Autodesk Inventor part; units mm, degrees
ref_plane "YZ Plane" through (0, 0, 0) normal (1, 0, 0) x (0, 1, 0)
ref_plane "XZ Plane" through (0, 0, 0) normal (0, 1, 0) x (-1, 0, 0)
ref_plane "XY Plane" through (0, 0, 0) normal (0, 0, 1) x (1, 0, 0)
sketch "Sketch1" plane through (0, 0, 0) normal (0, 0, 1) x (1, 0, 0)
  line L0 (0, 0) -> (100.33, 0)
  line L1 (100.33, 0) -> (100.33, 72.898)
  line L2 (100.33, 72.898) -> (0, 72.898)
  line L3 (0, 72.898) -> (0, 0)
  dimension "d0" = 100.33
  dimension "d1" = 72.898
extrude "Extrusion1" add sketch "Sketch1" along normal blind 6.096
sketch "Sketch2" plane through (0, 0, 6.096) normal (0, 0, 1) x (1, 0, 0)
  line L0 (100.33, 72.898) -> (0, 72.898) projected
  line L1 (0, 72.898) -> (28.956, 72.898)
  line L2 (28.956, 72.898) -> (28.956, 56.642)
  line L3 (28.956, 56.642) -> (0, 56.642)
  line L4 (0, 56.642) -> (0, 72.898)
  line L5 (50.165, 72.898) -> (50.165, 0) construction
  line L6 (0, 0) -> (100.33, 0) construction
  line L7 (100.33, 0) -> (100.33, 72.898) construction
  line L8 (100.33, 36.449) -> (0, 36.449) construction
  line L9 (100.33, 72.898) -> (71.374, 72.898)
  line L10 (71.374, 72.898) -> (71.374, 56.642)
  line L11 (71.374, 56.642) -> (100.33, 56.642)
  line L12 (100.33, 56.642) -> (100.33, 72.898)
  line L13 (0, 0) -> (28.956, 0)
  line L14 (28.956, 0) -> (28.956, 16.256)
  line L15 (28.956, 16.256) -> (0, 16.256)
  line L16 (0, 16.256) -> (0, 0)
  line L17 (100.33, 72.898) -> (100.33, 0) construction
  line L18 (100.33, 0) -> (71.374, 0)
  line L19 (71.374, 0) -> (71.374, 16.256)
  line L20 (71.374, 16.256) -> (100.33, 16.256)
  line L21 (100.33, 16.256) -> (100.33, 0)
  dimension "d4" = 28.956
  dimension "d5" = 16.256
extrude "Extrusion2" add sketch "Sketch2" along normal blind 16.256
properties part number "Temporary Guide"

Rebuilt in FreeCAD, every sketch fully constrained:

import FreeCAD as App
import Part
import Sketcher

V = App.Vector
Q = App.Units.Quantity


def add_polygon(sketch, points):
    """Adds a closed chain of lines whose ends are joined by coincident constraints."""
    first, n = sketch.GeometryCount, len(points)
    for a, b in zip(points, points[1:] + points[:1]):
        sketch.addGeometry(Part.LineSegment(App.Vector(*a, 0), App.Vector(*b, 0)), False)
    for i in range(n):
        sketch.addConstraint(Sketcher.Constraint("Coincident", first + i, 2, first + (i + 1) % n, 1))

doc = App.newDocument("Part")
body = doc.addObject("PartDesign::Body", "Body")

# Sketch on XY plane
sketch1 = body.newObject("Sketcher::SketchObject", "Sketch")
sketch1.AttachmentSupport = (doc.getObject("XY_Plane"), [""])
sketch1.MapMode = "FlatFace"
add_polygon(sketch1, [(0, 73), (0, 0), (100, 0), (100, 73)])  # lines 0-3
sketch1.addConstraint(Sketcher.Constraint("Vertical", 0))
sketch1.addConstraint(Sketcher.Constraint("Horizontal", 1))
sketch1.addConstraint(Sketcher.Constraint("Vertical", 2))
sketch1.addConstraint(Sketcher.Constraint("Horizontal", 3))
sketch1.addConstraint(Sketcher.Constraint("Coincident", 0, 2, -1, 1))
sketch1.addConstraint(Sketcher.Constraint("DistanceX", 1, 1, 1, 2, Q("3.95 in")))
sketch1.addConstraint(Sketcher.Constraint("DistanceY", 0, 2, 0, 1, Q("2.87 in")))
pad1 = body.newObject("PartDesign::Pad", "Pad")
pad1.Profile = sketch1
pad1.Length = Q("0.24 in")

# Sketch on XY plane
sketch2 = body.newObject("Sketcher::SketchObject", "Sketch001")
sketch2.AttachmentSupport = (doc.getObject("XY_Plane"), [""])
sketch2.MapMode = "FlatFace"
sketch2.AttachmentOffset = App.Placement(V(0, 0, 0.24 * 25.4), App.Rotation())
add_polygon(sketch2, [(100, 57), (100, 73), (71, 73), (71, 57)])  # lines 0-3
add_polygon(sketch2, [(29, 57), (29, 73), (0, 73), (0, 57)])  # lines 4-7
add_polygon(sketch2, [(0, 16), (0, 0), (29, 0), (29, 16)])  # lines 8-11
add_polygon(sketch2, [(71, 0), (100, 0), (100, 16), (71, 16)])  # lines 12-15
sketch2.addConstraint(Sketcher.Constraint("Vertical", 0))
sketch2.addConstraint(Sketcher.Constraint("Horizontal", 1))
sketch2.addConstraint(Sketcher.Constraint("Vertical", 2))
sketch2.addConstraint(Sketcher.Constraint("Horizontal", 3))
sketch2.addConstraint(Sketcher.Constraint("Vertical", 4))
sketch2.addConstraint(Sketcher.Constraint("Horizontal", 5))
sketch2.addConstraint(Sketcher.Constraint("Vertical", 6))
sketch2.addConstraint(Sketcher.Constraint("Horizontal", 7))
sketch2.addConstraint(Sketcher.Constraint("Vertical", 8))
sketch2.addConstraint(Sketcher.Constraint("Horizontal", 9))
sketch2.addConstraint(Sketcher.Constraint("Vertical", 10))
sketch2.addConstraint(Sketcher.Constraint("Horizontal", 11))
sketch2.addConstraint(Sketcher.Constraint("Horizontal", 12))
sketch2.addConstraint(Sketcher.Constraint("Vertical", 13))
sketch2.addConstraint(Sketcher.Constraint("Horizontal", 14))
sketch2.addConstraint(Sketcher.Constraint("Vertical", 15))
sketch2.addConstraint(Sketcher.Constraint("Coincident", 8, 2, -1, 1))
sketch2.addConstraint(Sketcher.Constraint("PointOnObject", 5, 2, -2))
sketch2.addConstraint(Sketcher.Constraint("PointOnObject", 12, 2, -1))
sketch2.addConstraint(Sketcher.Constraint("Horizontal", 1, 2, 4, 2))
sketch2.addConstraint(Sketcher.Constraint("Horizontal", 3, 2, 6, 2))
sketch2.addConstraint(Sketcher.Constraint("Horizontal", 11, 2, 13, 2))
sketch2.addConstraint(Sketcher.Constraint("Vertical", 7, 2, 9, 2))
sketch2.addConstraint(Sketcher.Constraint("Vertical", 3, 2, 12, 2))
sketch2.addConstraint(Sketcher.Constraint("Vertical", 2, 2, 14, 2))
sketch2.addConstraint(Sketcher.Constraint("Equal", 3, 5))
sketch2.addConstraint(Sketcher.Constraint("Equal", 6, 8))
sketch2.addConstraint(Sketcher.Constraint("DistanceX", 1, 2, 1, 1, Q("1.14 in")))
sketch2.addConstraint(Sketcher.Constraint("DistanceY", 0, 1, 0, 2, Q("0.64 in")))
sketch2.addConstraint(Sketcher.Constraint("DistanceX", -1, 1, 0, 2, Q("3.95 in")))
sketch2.addConstraint(Sketcher.Constraint("DistanceY", -1, 1, 0, 2, Q("2.87 in")))
pad2 = body.newObject("PartDesign::Pad", "Pad001")
pad2.Profile = sketch2
pad2.Length = Q("0.64 in")

doc.recompute()
